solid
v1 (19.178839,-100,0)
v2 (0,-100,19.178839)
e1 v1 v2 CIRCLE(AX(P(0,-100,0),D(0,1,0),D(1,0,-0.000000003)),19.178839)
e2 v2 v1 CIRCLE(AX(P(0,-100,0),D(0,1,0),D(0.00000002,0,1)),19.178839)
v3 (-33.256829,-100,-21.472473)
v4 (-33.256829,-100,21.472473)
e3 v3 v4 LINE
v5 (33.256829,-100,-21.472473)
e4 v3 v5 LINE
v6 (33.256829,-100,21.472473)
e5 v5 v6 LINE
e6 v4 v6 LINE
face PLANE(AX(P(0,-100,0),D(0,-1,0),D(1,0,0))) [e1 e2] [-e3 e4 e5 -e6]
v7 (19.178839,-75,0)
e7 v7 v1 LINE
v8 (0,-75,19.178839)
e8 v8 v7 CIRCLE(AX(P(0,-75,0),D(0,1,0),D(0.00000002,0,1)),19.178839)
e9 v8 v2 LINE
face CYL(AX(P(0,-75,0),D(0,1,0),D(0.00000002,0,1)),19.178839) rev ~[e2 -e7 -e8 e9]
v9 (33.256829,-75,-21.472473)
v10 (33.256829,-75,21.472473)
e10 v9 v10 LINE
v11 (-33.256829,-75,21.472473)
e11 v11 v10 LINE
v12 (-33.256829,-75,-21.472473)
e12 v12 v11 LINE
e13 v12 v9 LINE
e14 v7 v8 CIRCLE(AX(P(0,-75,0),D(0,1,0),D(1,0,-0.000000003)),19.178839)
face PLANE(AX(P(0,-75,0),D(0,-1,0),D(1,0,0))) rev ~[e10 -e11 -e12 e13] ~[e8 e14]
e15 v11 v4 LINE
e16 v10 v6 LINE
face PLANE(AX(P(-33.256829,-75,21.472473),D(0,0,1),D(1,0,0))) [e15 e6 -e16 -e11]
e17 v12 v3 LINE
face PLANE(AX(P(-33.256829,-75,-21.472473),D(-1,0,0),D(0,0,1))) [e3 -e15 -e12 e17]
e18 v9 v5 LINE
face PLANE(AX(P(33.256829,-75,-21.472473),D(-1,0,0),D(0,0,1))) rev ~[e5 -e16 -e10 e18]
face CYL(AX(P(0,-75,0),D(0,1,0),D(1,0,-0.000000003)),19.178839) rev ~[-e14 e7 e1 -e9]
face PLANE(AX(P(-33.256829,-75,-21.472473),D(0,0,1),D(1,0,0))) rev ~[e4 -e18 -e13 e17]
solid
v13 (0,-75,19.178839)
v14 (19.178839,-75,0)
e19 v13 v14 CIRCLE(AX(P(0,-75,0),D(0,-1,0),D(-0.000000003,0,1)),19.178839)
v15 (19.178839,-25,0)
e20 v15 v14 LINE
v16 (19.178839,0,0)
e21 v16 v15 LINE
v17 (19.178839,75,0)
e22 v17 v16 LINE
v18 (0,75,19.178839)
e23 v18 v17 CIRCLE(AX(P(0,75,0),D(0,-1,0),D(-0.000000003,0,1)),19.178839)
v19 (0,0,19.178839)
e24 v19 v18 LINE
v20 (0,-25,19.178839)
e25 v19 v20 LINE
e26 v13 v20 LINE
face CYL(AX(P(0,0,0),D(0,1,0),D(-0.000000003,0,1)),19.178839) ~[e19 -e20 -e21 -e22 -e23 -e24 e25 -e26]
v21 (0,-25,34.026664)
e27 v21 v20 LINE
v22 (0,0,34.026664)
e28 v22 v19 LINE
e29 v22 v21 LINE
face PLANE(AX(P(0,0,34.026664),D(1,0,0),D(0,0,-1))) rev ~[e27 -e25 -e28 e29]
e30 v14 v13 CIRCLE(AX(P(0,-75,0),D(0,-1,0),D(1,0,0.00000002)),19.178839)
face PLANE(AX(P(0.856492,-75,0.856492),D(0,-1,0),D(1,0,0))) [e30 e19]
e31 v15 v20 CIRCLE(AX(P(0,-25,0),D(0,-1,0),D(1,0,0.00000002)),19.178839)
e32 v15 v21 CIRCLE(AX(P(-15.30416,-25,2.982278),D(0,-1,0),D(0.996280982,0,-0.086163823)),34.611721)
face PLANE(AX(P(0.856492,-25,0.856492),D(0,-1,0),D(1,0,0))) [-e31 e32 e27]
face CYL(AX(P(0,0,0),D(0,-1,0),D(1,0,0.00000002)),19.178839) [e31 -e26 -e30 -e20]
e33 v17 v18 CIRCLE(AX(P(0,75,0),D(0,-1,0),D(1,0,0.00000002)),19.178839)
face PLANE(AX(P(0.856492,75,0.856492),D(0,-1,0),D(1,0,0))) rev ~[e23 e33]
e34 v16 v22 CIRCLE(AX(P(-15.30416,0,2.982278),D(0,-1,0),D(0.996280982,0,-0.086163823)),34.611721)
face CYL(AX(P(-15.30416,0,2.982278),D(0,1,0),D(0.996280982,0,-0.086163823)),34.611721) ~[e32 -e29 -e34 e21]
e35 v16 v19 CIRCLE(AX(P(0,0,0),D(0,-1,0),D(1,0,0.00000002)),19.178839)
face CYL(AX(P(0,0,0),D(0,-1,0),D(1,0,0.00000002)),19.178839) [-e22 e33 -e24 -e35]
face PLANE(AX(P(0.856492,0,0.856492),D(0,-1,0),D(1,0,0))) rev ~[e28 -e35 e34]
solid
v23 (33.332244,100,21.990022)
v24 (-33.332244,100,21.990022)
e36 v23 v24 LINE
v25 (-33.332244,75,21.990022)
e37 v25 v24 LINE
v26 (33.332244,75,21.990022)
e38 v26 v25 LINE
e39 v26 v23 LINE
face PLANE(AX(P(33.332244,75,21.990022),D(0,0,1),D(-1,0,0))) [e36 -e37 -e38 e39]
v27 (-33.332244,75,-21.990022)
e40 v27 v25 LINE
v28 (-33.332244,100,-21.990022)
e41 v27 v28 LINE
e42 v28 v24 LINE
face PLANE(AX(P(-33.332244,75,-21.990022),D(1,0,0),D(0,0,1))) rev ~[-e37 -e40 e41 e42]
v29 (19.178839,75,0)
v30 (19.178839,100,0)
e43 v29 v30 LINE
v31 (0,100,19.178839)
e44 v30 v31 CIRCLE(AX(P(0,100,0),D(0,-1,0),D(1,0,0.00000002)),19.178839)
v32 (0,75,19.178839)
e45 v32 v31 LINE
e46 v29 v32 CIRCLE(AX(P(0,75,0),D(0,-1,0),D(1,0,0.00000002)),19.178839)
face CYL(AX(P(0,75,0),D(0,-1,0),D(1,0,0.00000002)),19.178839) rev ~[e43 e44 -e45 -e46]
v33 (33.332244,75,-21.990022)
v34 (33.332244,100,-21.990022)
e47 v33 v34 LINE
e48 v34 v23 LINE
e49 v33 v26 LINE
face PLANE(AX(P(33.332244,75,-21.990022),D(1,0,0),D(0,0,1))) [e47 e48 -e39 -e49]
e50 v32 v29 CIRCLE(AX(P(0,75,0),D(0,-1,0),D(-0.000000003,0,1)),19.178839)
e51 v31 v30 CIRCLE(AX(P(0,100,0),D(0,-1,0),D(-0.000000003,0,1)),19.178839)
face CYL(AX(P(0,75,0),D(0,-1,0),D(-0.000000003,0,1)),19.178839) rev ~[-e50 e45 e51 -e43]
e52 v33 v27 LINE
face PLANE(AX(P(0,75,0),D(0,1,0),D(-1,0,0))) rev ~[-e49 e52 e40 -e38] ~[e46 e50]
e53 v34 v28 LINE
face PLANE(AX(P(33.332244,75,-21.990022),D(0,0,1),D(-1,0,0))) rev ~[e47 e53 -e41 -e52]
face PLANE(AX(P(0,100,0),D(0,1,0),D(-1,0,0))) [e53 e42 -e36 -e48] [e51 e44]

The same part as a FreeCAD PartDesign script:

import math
import FreeCAD as App
import Part
import Sketcher
from FreeCAD import Vector
Q = App.Units.Quantity

doc = App.newDocument("Part")
params = doc.addObject("Spreadsheet::Sheet", "Params")
for row, (alias, value) in enumerate([
    ("pad1_length", "150 mm"),
    ("pad2_length", "25 mm"),
    ("pad3_length", "25 mm"),
    ("pad4_length", "25 mm"),
], start=1):
    params.set(f"A{row}", alias)
    params.set(f"B{row}", "=" + value)
    params.setAlias(f"B{row}", alias)

body = doc.addObject("PartDesign::Body", "Body")

# Sketch on XZ plane
sketch1 = body.newObject("Sketcher::SketchObject", "Sketch")
sketch1.AttachmentSupport = (doc.getObject("XZ_Plane"), [""])
sketch1.MapMode = "FlatFace"
sketch1.addGeometry([
    Part.ArcOfCircle(Part.Circle(Vector(0, 0, 0), Vector(0, 0, 1), 19.178839), math.radians(90), math.radians(360)),
    Part.ArcOfCircle(Part.Circle(Vector(0, 0, 0), Vector(0, 0, 1), 19.178839), math.radians(0.000001), math.radians(89.999999)),
], False)
sketch1.addConstraint([
    Sketcher.Constraint("Tangent", 0, 1, 1, 2),
    Sketcher.Constraint("Coincident", 1, 1, 0, 2),
    Sketcher.Constraint("Coincident", 0, 3, -1, 1),
    Sketcher.Constraint("PointOnObject", 0, 1, -2),
    Sketcher.Constraint("PointOnObject", 1, 1, -1),
    Sketcher.Constraint("Radius", 0, Q("19.178839 mm")),
])
pad1 = body.newObject("PartDesign::Pad", "Pad")
pad1.Profile = sketch1
pad1.setExpression("Length", "Params.pad1_length")
pad1.Midplane = True

# Sketch on XZ plane
sketch2 = body.newObject("Sketcher::SketchObject", "Sketch001")
sketch2.AttachmentSupport = (doc.getObject("XZ_Plane"), [""])
sketch2.MapMode = "FlatFace"
sketch2.addGeometry([
    Part.ArcOfCircle(Part.Circle(Vector(0, 0, 0), Vector(0, 0, 1), 19.178839), math.radians(90), math.radians(360)),
    Part.ArcOfCircle(Part.Circle(Vector(-15.30416, 2.982278, 0), Vector(0, 0, 1), 34.611721), math.radians(-4.942953), math.radians(63.757775)),
    Part.LineSegment(Vector(0, 34.026664, 0), Vector(0, 19.178839, 0)),
], False)
sketch2.addConstraint([
    Sketcher.Constraint("Coincident", 0, 2, 1, 1),
    Sketcher.Constraint("Coincident", 1, 2, 2, 1),
    Sketcher.Constraint("Coincident", 2, 2, 0, 1),
    Sketcher.Constraint("Vertical", 2),
    Sketcher.Constraint("Coincident", 0, 3, -1, 1),
    Sketcher.Constraint("PointOnObject", 0, 2, -1),
    Sketcher.Constraint("PointOnObject", 1, 2, -2),
    Sketcher.Constraint("Radius", 0, Q("19.178839 mm")),
    Sketcher.Constraint("Radius", 1, Q("34.611721 mm")),
    Sketcher.Constraint("DistanceX", 1, 3, 0, 2, Q("34.482999 mm")),
])
pad2 = body.newObject("PartDesign::Pad", "Pad001")
pad2.Profile = sketch2
pad2.setExpression("Length", "Params.pad2_length")
body2 = doc.addObject("PartDesign::Body", "Body001")

# Sketch on XZ plane
sketch3 = body2.newObject("Sketcher::SketchObject", "Sketch002")
sketch3.AttachmentSupport = (doc.getObject("XZ_Plane001"), [""])
sketch3.MapMode = "FlatFace"
sketch3.AttachmentOffset = App.Placement(Vector(0, 0, 75), App.Rotation())
sketch3.addGeometry([
    Part.LineSegment(Vector(-33.256829, 21.472473, 0), Vector(-33.256829, -21.472473, 0)),  # 0
    Part.LineSegment(Vector(-33.256829, -21.472473, 0), Vector(33.256829, -21.472473, 0)),  # 1
    Part.LineSegment(Vector(33.256829, -21.472473, 0), Vector(33.256829, 21.472473, 0)),  # 2
    Part.LineSegment(Vector(33.256829, 21.472473, 0), Vector(-33.256829, 21.472473, 0)),  # 3
    Part.ArcOfCircle(Part.Circle(Vector(0, 0, 0), Vector(0, 0, 1), 19.178839), math.radians(90), math.radians(360)),  # 4
    Part.ArcOfCircle(Part.Circle(Vector(0, 0, 0), Vector(0, 0, 1), 19.178839), math.radians(0.000001), math.radians(89.999999)),  # 5
], False)
sketch3.addConstraint([
    Sketcher.Constraint("Coincident", 0, 2, 1, 1),
    Sketcher.Constraint("Coincident", 1, 2, 2, 1),
    Sketcher.Constraint("Coincident", 2, 2, 3, 1),
    Sketcher.Constraint("Coincident", 3, 2, 0, 1),
    Sketcher.Constraint("Tangent", 4, 1, 5, 2),
    Sketcher.Constraint("Coincident", 5, 1, 4, 2),
    Sketcher.Constraint("Vertical", 0),
    Sketcher.Constraint("Horizontal", 1),
    Sketcher.Constraint("Vertical", 2),
    Sketcher.Constraint("Horizontal", 3),
    Sketcher.Constraint("Coincident", 4, 3, -1, 1),
    Sketcher.Constraint("Symmetric", 0, 2, 2, 2, -1, 1),
    Sketcher.Constraint("PointOnObject", 4, 1, -2),
    Sketcher.Constraint("PointOnObject", 5, 1, -1),
    Sketcher.Constraint("Radius", 4, Q("19.178839 mm")),
    Sketcher.Constraint("DistanceX", 1, 1, 1, 2, Q("66.513658 mm")),
    Sketcher.Constraint("DistanceY", 0, 2, 0, 1, Q("42.944946 mm")),
])
pad3 = body2.newObject("PartDesign::Pad", "Pad002")
pad3.Profile = sketch3
pad3.setExpression("Length", "Params.pad3_length")
body3 = doc.addObject("PartDesign::Body", "Body002")

# Sketch on XZ plane
sketch4 = body3.newObject("Sketcher::SketchObject", "Sketch003")
sketch4.AttachmentSupport = (doc.getObject("XZ_Plane002"), [""])
sketch4.MapMode = "FlatFace"
sketch4.AttachmentOffset = App.Placement(Vector(0, 0, -75), App.Rotation())
sketch4.addGeometry([
    Part.LineSegment(Vector(33.332244, 21.990022, 0), Vector(33.332244, -21.990022, 0)),  # 0
    Part.LineSegment(Vector(33.332244, -21.990022, 0), Vector(-33.332244, -21.990022, 0)),  # 1
    Part.LineSegment(Vector(-33.332244, -21.990022, 0), Vector(-33.332244, 21.990022, 0)),  # 2
    Part.LineSegment(Vector(-33.332244, 21.990022, 0), Vector(33.332244, 21.990022, 0)),  # 3
    Part.ArcOfCircle(Part.Circle(Vector(0, 0, 0), Vector(0, 0, 1), 19.178839), math.radians(90), math.radians(360)),  # 4
    Part.ArcOfCircle(Part.Circle(Vector(0, 0, 0), Vector(0, 0, 1), 19.178839), math.radians(0.000001), math.radians(89.999999)),  # 5
], False)
sketch4.addConstraint([
    Sketcher.Constraint("Coincident", 0, 2, 1, 1),
    Sketcher.Constraint("Coincident", 1, 2, 2, 1),
    Sketcher.Constraint("Coincident", 2, 2, 3, 1),
    Sketcher.Constraint("Coincident", 3, 2, 0, 1),
    Sketcher.Constraint("Tangent", 4, 1, 5, 2),
    Sketcher.Constraint("Coincident", 5, 1, 4, 2),
    Sketcher.Constraint("Vertical", 0),
    Sketcher.Constraint("Horizontal", 1),
    Sketcher.Constraint("Vertical", 2),
    Sketcher.Constraint("Horizontal", 3),
    Sketcher.Constraint("Coincident", 4, 3, -1, 1),
    Sketcher.Constraint("Symmetric", 0, 2, 2, 2, -1, 1),
    Sketcher.Constraint("PointOnObject", 4, 1, -2),
    Sketcher.Constraint("PointOnObject", 5, 1, -1),
    Sketcher.Constraint("Radius", 4, Q("19.178839 mm")),
    Sketcher.Constraint("DistanceX", 1, 2, 1, 1, Q("66.664488 mm")),
    Sketcher.Constraint("DistanceY", 0, 2, 0, 1, Q("43.980044 mm")),
])
pad4 = body3.newObject("PartDesign::Pad", "Pad003")
pad4.Profile = sketch4
pad4.setExpression("Length", "Params.pad4_length")
pad4.Reversed = True

doc.recompute()
